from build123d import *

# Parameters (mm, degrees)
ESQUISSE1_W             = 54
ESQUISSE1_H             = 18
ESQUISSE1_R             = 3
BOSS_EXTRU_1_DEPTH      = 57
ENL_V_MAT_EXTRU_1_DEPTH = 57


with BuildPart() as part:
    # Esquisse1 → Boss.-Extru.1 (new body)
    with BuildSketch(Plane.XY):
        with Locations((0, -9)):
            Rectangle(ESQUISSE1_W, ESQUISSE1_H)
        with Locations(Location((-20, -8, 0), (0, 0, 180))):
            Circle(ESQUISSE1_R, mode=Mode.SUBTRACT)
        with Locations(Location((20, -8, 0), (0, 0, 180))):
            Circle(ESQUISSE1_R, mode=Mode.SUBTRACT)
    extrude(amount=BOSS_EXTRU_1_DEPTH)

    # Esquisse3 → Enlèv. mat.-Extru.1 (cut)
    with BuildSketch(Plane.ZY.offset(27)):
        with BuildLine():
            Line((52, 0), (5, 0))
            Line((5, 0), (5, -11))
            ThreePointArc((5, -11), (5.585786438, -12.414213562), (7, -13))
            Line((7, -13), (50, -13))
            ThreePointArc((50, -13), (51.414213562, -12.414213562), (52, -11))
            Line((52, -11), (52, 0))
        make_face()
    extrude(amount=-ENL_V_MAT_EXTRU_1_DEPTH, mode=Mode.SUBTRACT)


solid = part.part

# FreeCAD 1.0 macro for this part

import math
import FreeCAD as App
import Part
import Sketcher
from FreeCAD import Vector

doc = App.newDocument("Part")
params = doc.addObject("Spreadsheet::Sheet", "Params")
for row, (alias, value) in enumerate([
    ("sketch1_diameter", "6 mm"),
    ("sketch1_width", "54 mm"),
    ("sketch1_height", "18 mm"),
    ("pad1_length", "57 mm"),
    ("sketch2_radius", "2 mm"),
    ("sketch2_width", "11 mm"),
    ("sketch2_height", "47 mm"),
    ("pocket1_length", "57 mm"),
], start=1):
    params.set(f"A{row}", alias)
    params.set(f"B{row}", "=" + value)
    params.setAlias(f"B{row}", alias)

body = doc.addObject("PartDesign::Body", "Body")

sketch1 = body.newObject("Sketcher::SketchObject", "Sketch")
sketch1.AttachmentSupport = (doc.getObject("XY_Plane"), [""])
sketch1.MapMode = "FlatFace"
sketch1.addGeometry([
    Part.LineSegment(Vector(-27, 0, 0), Vector(-27, -18, 0)),
    Part.LineSegment(Vector(-27, -18, 0), Vector(27, -18, 0)),
    Part.LineSegment(Vector(27, -18, 0), Vector(27, 0, 0)),
    Part.LineSegment(Vector(27, 0, 0), Vector(-27, 0, 0)),
    Part.Circle(Vector(-20, -8, 0), Vector(0, 0, 1), 3),
    Part.Circle(Vector(20, -8, 0), Vector(0, 0, 1), 3),
], False)
sketch1.addConstraint([
    Sketcher.Constraint("Coincident", 0, 2, 1, 1),
    Sketcher.Constraint("Coincident", 1, 2, 2, 1),
    Sketcher.Constraint("Coincident", 2, 2, 3, 1),
    Sketcher.Constraint("Coincident", 3, 2, 0, 1),
    Sketcher.Constraint("Vertical", 0),
    Sketcher.Constraint("Horizontal", 1),
    Sketcher.Constraint("Vertical", 2),
    Sketcher.Constraint("Horizontal", 3),
    Sketcher.Constraint("Equal", 4, 5),
    Sketcher.Constraint("Symmetric", 2, 2, 3, 2, -1, 1),
    Sketcher.Constraint("Symmetric", 4, 3, 5, 3, -2),
    Sketcher.Constraint("Diameter", 4, 6.0),
    Sketcher.Constraint("DistanceX", 1, 1, 1, 2, 54.0),
    Sketcher.Constraint("DistanceY", 0, 2, 0, 1, 18.0),
    Sketcher.Constraint("DistanceX", 4, 3, -1, 1, 20.0),
    Sketcher.Constraint("DistanceY", 4, 3, -1, 1, 8.0),
])
sketch1.setExpression("Constraints[11]", "Params.sketch1_diameter")
sketch1.setExpression("Constraints[12]", "Params.sketch1_width")
sketch1.setExpression("Constraints[13]", "Params.sketch1_height")
pad1 = body.newObject("PartDesign::Pad", "Pad")
pad1.Profile = sketch1
pad1.setExpression("Length", "Params.pad1_length")

sketch2 = body.newObject("Sketcher::SketchObject", "Sketch001")
sketch2.AttachmentSupport = (doc.getObject("YZ_Plane"), [""])
sketch2.MapMode = "FlatFace"
sketch2.AttachmentOffset = App.Placement(Vector(0, 0, -27), App.Rotation())
sketch2.addGeometry([
    Part.LineSegment(Vector(0, 52, 0), Vector(0, 5, 0)),
    Part.LineSegment(Vector(0, 5, 0), Vector(-11, 5, 0)),
    Part.ArcOfCircle(Part.Circle(Vector(-11, 7, 0), Vector(0, 0, 1), 2), math.radians(-180), math.radians(-90)),
    Part.LineSegment(Vector(-13, 7, 0), Vector(-13, 50, 0)),
    Part.ArcOfCircle(Part.Circle(Vector(-11, 50, 0), Vector(0, 0, 1), 2), math.radians(90), math.radians(180)),
    Part.LineSegment(Vector(-11, 52, 0), Vector(0, 52, 0)),
], False)
sketch2.addConstraint([
    Sketcher.Constraint("Coincident", 0, 2, 1, 1),
    Sketcher.Constraint("Tangent", 1, 2, 2, 2),
    Sketcher.Constraint("Tangent", 2, 1, 3, 1),
    Sketcher.Constraint("Tangent", 3, 2, 4, 2),
    Sketcher.Constraint("Tangent", 4, 1, 5, 1),
    Sketcher.Constraint("Coincident", 5, 2, 0, 1),
    Sketcher.Constraint("Vertical", 0),
    Sketcher.Constraint("Horizontal", 1),
    Sketcher.Constraint("Vertical", 3),
    Sketcher.Constraint("Horizontal", 5),
    Sketcher.Constraint("Equal", 2, 4),
    Sketcher.Constraint("PointOnObject", 0, 2, -2),
    Sketcher.Constraint("Radius", 2, 2.0),
    Sketcher.Constraint("DistanceX", 1, 2, 1, 1, 11.0),
    Sketcher.Constraint("DistanceY", 0, 2, 0, 1, 47.0),
    Sketcher.Constraint("DistanceY", -1, 1, 2, 3, 7.0),
])
sketch2.setExpression("Constraints[12]", "Params.sketch2_radius")
sketch2.setExpression("Constraints[13]", "Params.sketch2_width")
sketch2.setExpression("Constraints[14]", "Params.sketch2_height")
pocket1 = body.newObject("PartDesign::Pocket", "Pocket")
pocket1.Profile = sketch2
pocket1.setExpression("Length", "Params.pocket1_length")
pocket1.Reversed = True

doc.recompute()
